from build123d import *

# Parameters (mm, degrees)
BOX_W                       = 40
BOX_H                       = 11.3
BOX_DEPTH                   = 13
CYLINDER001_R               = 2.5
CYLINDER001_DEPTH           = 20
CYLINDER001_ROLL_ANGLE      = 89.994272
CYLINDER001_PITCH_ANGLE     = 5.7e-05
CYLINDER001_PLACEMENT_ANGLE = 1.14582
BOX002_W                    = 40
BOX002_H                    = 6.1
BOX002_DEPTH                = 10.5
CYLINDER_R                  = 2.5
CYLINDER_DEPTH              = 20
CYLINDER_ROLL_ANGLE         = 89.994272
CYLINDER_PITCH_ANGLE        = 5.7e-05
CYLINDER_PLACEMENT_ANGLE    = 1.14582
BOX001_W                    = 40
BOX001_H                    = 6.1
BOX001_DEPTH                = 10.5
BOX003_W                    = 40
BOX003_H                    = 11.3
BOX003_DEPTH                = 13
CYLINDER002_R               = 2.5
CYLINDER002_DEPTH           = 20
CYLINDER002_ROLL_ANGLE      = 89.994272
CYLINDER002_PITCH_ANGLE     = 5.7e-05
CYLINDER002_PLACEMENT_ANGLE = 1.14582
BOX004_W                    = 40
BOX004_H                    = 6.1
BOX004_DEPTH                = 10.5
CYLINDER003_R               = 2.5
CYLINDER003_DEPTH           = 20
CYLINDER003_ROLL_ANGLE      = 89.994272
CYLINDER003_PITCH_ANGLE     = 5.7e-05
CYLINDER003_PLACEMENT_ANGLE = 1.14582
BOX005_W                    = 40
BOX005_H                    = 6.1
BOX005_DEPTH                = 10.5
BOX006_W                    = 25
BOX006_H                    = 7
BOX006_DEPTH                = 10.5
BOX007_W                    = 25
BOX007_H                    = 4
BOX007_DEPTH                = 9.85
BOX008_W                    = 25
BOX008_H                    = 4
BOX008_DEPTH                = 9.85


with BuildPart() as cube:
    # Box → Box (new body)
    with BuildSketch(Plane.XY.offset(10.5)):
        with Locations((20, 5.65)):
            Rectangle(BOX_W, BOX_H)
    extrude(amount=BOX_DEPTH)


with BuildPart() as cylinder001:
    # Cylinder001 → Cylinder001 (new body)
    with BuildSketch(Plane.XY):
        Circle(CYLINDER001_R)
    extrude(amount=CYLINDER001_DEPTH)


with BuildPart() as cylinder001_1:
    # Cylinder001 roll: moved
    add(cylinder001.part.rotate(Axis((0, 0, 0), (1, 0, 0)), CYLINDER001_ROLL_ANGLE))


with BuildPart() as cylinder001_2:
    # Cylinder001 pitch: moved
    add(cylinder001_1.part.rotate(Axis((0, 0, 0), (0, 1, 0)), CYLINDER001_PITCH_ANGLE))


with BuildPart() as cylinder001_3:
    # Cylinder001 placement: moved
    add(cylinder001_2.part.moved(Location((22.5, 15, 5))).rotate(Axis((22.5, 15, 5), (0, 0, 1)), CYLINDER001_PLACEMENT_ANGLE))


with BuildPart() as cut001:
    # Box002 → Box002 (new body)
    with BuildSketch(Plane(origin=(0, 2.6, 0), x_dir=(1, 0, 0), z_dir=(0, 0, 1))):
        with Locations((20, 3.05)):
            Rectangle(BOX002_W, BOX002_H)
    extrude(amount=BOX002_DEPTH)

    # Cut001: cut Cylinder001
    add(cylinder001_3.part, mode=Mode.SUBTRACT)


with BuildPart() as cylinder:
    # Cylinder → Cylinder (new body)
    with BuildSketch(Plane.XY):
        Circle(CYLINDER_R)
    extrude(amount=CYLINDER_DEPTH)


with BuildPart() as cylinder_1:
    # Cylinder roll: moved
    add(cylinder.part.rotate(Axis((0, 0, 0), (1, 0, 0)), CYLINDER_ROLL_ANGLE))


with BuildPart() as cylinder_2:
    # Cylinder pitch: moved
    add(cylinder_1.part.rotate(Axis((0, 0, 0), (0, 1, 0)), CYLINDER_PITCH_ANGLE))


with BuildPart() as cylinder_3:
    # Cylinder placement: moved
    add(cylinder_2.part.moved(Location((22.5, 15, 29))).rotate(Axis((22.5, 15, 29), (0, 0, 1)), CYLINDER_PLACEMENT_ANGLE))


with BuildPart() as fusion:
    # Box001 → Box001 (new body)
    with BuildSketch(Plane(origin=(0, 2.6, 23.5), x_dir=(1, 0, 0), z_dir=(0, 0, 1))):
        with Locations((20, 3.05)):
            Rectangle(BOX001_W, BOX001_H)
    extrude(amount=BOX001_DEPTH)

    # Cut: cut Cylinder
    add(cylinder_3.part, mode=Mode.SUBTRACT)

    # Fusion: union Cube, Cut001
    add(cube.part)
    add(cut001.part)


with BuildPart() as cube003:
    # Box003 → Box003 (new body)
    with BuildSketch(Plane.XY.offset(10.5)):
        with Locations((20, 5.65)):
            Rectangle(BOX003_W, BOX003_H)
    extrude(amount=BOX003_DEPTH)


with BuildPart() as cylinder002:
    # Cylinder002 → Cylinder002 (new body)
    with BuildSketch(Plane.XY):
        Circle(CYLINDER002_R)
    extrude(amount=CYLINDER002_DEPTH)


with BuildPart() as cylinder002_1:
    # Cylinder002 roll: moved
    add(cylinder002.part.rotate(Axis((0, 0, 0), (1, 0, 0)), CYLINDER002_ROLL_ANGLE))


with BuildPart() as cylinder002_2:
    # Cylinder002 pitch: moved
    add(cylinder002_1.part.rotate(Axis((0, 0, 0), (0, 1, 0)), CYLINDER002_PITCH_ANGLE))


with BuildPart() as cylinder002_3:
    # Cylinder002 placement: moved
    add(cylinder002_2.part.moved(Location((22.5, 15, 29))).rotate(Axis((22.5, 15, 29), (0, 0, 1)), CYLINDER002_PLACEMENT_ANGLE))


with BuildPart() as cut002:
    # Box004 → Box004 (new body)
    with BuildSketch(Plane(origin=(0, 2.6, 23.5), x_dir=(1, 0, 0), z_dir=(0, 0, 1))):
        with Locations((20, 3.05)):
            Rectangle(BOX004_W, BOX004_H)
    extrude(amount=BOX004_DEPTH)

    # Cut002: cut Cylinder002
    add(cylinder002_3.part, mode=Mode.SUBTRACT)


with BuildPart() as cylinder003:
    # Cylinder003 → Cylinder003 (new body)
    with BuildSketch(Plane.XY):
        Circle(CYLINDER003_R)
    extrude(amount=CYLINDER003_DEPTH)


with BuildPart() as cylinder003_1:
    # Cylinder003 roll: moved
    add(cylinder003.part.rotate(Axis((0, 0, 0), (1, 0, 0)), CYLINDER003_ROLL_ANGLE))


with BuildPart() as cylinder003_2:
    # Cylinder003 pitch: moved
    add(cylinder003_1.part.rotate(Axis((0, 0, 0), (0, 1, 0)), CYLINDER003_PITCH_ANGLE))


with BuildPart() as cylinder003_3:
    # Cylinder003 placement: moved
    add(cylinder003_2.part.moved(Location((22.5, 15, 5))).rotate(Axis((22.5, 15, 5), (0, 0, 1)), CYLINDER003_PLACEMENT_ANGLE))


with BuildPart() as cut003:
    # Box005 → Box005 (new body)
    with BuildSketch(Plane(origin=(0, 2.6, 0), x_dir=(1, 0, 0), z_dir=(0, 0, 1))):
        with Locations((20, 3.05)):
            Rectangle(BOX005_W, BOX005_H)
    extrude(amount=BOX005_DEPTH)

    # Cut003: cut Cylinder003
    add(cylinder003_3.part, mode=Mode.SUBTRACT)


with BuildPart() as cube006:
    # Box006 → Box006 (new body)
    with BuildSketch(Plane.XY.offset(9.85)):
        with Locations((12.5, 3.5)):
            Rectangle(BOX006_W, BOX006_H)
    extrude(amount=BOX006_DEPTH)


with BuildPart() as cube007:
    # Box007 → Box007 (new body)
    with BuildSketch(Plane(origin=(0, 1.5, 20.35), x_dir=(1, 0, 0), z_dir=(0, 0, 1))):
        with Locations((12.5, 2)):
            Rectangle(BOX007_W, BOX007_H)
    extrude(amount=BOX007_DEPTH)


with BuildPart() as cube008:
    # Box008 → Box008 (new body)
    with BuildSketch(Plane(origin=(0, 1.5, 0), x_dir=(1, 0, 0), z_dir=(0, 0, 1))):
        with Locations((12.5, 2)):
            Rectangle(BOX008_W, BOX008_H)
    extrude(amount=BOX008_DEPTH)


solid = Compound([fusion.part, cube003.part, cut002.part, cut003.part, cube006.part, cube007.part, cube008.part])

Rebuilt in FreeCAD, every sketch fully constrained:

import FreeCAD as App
import Part
import Sketcher

V = App.Vector
Q = App.Units.Quantity


def add_polygon(sketch, points):
    """Adds a closed chain of lines whose ends are joined by coincident constraints."""
    first, n = sketch.GeometryCount, len(points)
    for a, b in zip(points, points[1:] + points[:1]):
        sketch.addGeometry(Part.LineSegment(App.Vector(*a, 0), App.Vector(*b, 0)), False)
    for i in range(n):
        sketch.addConstraint(Sketcher.Constraint("Coincident", first + i, 2, first + (i + 1) % n, 1))

doc = App.newDocument("Part")
params = doc.addObject("Spreadsheet::Sheet", "Params")
for row, (alias, value) in enumerate([
    ("sketch1_width", "40 mm"),
    ("sketch1_height", "11.3 mm"),
    ("pad1_length", "13 mm"),
    ("sketch2_diameter", "5 mm"),
    ("pad2_length", "20 mm"),
    ("sketch3_width", "40 mm"),
    ("sketch3_height", "6.1 mm"),
    ("pad3_length", "10.5 mm"),
    ("sketch4_diameter", "5 mm"),
    ("pad4_length", "20 mm"),
    ("sketch5_width", "40 mm"),
    ("sketch5_height", "6.1 mm"),
    ("pad5_length", "10.5 mm"),
    ("sketch6_width", "40 mm"),
    ("sketch6_height", "11.3 mm"),
    ("pad6_length", "13 mm"),
    ("sketch7_diameter", "5 mm"),
    ("pad7_length", "20 mm"),
    ("sketch8_width", "40 mm"),
    ("sketch8_height", "6.1 mm"),
    ("pad8_length", "10.5 mm"),
    ("sketch9_diameter", "5 mm"),
    ("pad9_length", "20 mm"),
    ("sketch10_width", "40 mm"),
    ("sketch10_height", "6.1 mm"),
    ("pad10_length", "10.5 mm"),
    ("sketch11_width", "25 mm"),
    ("sketch11_height", "7 mm"),
    ("pad11_length", "10.5 mm"),
    ("sketch12_width", "25 mm"),
    ("sketch12_height", "4 mm"),
    ("pad12_length", "9.85 mm"),
    ("sketch13_width", "25 mm"),
    ("sketch13_height", "4 mm"),
    ("pad13_length", "9.85 mm"),
], start=1):
    params.set(f"A{row}", alias)
    params.set(f"B{row}", "=" + value)
    params.setAlias(f"B{row}", alias)

body = doc.addObject("PartDesign::Body", "Body")

# Sketch on XY plane
sketch1 = doc.addObject("Sketcher::SketchObject", "Sketch")
body.addObject(sketch1)
sketch1.AttachmentSupport = (doc.XY_Plane, [""])
sketch1.MapMode = "FlatFace"
sketch1.AttachmentOffset = App.Placement(V(0, 0, 10.5), App.Rotation())
add_polygon(sketch1, [(0, 11), (0, 0), (40, 0), (40, 11)])  # lines 0-3
sketch1.addConstraint(Sketcher.Constraint("Vertical", 0))
sketch1.addConstraint(Sketcher.Constraint("Horizontal", 1))
sketch1.addConstraint(Sketcher.Constraint("Vertical", 2))
sketch1.addConstraint(Sketcher.Constraint("Horizontal", 3))
sketch1.addConstraint(Sketcher.Constraint("Coincident", 0, 2, -1, 1))
sketch1.addConstraint(Sketcher.Constraint("DistanceX", 1, 1, 1, 2, Q("40 mm")))
sketch1.addConstraint(Sketcher.Constraint("DistanceY", 0, 2, 0, 1, Q("11.3 mm")))
sketch1.setExpression("Constraints[9]", "Params.sketch1_width")
sketch1.setExpression("Constraints[10]", "Params.sketch1_height")
pad1 = doc.addObject("PartDesign::Pad", "Pad")
body.addObject(pad1)
pad1.Profile = sketch1
pad1.setExpression("Length", "Params.pad1_length")
body2 = doc.addObject("PartDesign::Body", "Body001")

# Sketch on XY plane
sketch2 = doc.addObject("Sketcher::SketchObject", "Sketch001")
body2.addObject(sketch2)
sketch2.AttachmentSupport = (doc.getObject("XY_Plane001"), [""])
sketch2.MapMode = "FlatFace"
sketch2.addGeometry(Part.Circle(V(0, 0, 0), V(0, 0, 1), 2.5), False)
sketch2.addConstraint(Sketcher.Constraint("Coincident", 0, 3, -1, 1))
sketch2.addConstraint(Sketcher.Constraint("Diameter", 0, Q("5 mm")))
sketch2.setExpression("Constraints[1]", "Params.sketch2_diameter")
pad2 = doc.addObject("PartDesign::Pad", "Pad001")
body2.addObject(pad2)
pad2.Profile = sketch2
pad2.setExpression("Length", "Params.pad2_length")
body3 = doc.addObject("PartDesign::Body", "Body002")
doc.recompute()

body2.Placement = App.Placement(V(0, 0, 0), App.Rotation(V(1, 0, 0), 89.994272))
boolean = doc.addObject("PartDesign::Boolean", "Boolean")
body3.addObject(boolean)
boolean.Type = "Fuse"
boolean.addObjects([body2])
body4 = doc.addObject("PartDesign::Body", "Body003")
doc.recompute()

body3.Placement = App.Placement(V(0, 0, 0), App.Rotation(V(0, 1, 0), 0.000057))
boolean2 = doc.addObject("PartDesign::Boolean", "Boolean001")
body4.addObject(boolean2)
boolean2.Type = "Fuse"
boolean2.addObjects([body3])
body5 = doc.addObject("PartDesign::Body", "Body004")
doc.recompute()

body4.Placement = App.Placement(V(22.5, 15, 5), App.Rotation(V(0, 0, 1), 1.14582))
boolean3 = doc.addObject("PartDesign::Boolean", "Boolean002")
body5.addObject(boolean3)
boolean3.Type = "Fuse"
boolean3.addObjects([body4])
body6 = doc.addObject("PartDesign::Body", "Body005")

# Sketch on XY plane
sketch3 = doc.addObject("Sketcher::SketchObject", "Sketch002")
body6.addObject(sketch3)
sketch3.AttachmentSupport = (doc.getObject("XY_Plane005"), [""])
sketch3.MapMode = "FlatFace"
add_polygon(sketch3, [(0, 9), (0, 3), (40, 3), (40, 9)])  # lines 0-3
sketch3.addConstraint(Sketcher.Constraint("Vertical", 0))
sketch3.addConstraint(Sketcher.Constraint("Horizontal", 1))
sketch3.addConstraint(Sketcher.Constraint("Vertical", 2))
sketch3.addConstraint(Sketcher.Constraint("Horizontal", 3))
sketch3.addConstraint(Sketcher.Constraint("PointOnObject", 0, 2, -2))
sketch3.addConstraint(Sketcher.Constraint("DistanceX", 1, 1, 1, 2, Q("40 mm")))
sketch3.addConstraint(Sketcher.Constraint("DistanceY", 0, 2, 0, 1, Q("6.1 mm")))
sketch3.addConstraint(Sketcher.Constraint("DistanceY", -1, 1, 0, 2, Q("2.6 mm")))
sketch3.setExpression("Constraints[9]", "Params.sketch3_width")
sketch3.setExpression("Constraints[10]", "Params.sketch3_height")
pad3 = doc.addObject("PartDesign::Pad", "Pad002")
body6.addObject(pad3)
pad3.Profile = sketch3
pad3.setExpression("Length", "Params.pad3_length")
doc.recompute()

boolean4 = doc.addObject("PartDesign::Boolean", "Boolean003")
body6.addObject(boolean4)
boolean4.Type = "Cut"
boolean4.addObjects([body5])
body7 = doc.addObject("PartDesign::Body", "Body006")

# Sketch on XY plane
sketch4 = doc.addObject("Sketcher::SketchObject", "Sketch003")
body7.addObject(sketch4)
sketch4.AttachmentSupport = (doc.getObject("XY_Plane006"), [""])
sketch4.MapMode = "FlatFace"
sketch4.addGeometry(Part.Circle(V(0, 0, 0), V(0, 0, 1), 2.5), False)
sketch4.addConstraint(Sketcher.Constraint("Coincident", 0, 3, -1, 1))
sketch4.addConstraint(Sketcher.Constraint("Diameter", 0, Q("5 mm")))
sketch4.setExpression("Constraints[1]", "Params.sketch4_diameter")
pad4 = doc.addObject("PartDesign::Pad", "Pad003")
body7.addObject(pad4)
pad4.Profile = sketch4
pad4.setExpression("Length", "Params.pad4_length")
body8 = doc.addObject("PartDesign::Body", "Body007")
doc.recompute()

body7.Placement = App.Placement(V(0, 0, 0), App.Rotation(V(1, 0, 0), 89.994272))
boolean5 = doc.addObject("PartDesign::Boolean", "Boolean004")
body8.addObject(boolean5)
boolean5.Type = "Fuse"
boolean5.addObjects([body7])
body9 = doc.addObject("PartDesign::Body", "Body008")
doc.recompute()

body8.Placement = App.Placement(V(0, 0, 0), App.Rotation(V(0, 1, 0), 0.000057))
boolean6 = doc.addObject("PartDesign::Boolean", "Boolean005")
body9.addObject(boolean6)
boolean6.Type = "Fuse"
boolean6.addObjects([body8])
body10 = doc.addObject("PartDesign::Body", "Body009")
doc.recompute()

body9.Placement = App.Placement(V(22.5, 15, 29), App.Rotation(V(0, 0, 1), 1.14582))
boolean7 = doc.addObject("PartDesign::Boolean", "Boolean006")
body10.addObject(boolean7)
boolean7.Type = "Fuse"
boolean7.addObjects([body9])
body11 = doc.addObject("PartDesign::Body", "Body010")

# Sketch on XY plane
sketch5 = doc.addObject("Sketcher::SketchObject", "Sketch004")
body11.addObject(sketch5)
sketch5.AttachmentSupport = (doc.getObject("XY_Plane010"), [""])
sketch5.MapMode = "FlatFace"
sketch5.AttachmentOffset = App.Placement(V(0, 0, 23.5), App.Rotation())
add_polygon(sketch5, [(0, 9), (0, 3), (40, 3), (40, 9)])  # lines 0-3
sketch5.addConstraint(Sketcher.Constraint("Vertical", 0))
sketch5.addConstraint(Sketcher.Constraint("Horizontal", 1))
sketch5.addConstraint(Sketcher.Constraint("Vertical", 2))
sketch5.addConstraint(Sketcher.Constraint("Horizontal", 3))
sketch5.addConstraint(Sketcher.Constraint("PointOnObject", 0, 2, -2))
sketch5.addConstraint(Sketcher.Constraint("DistanceX", 1, 1, 1, 2, Q("40 mm")))
sketch5.addConstraint(Sketcher.Constraint("DistanceY", 0, 2, 0, 1, Q("6.1 mm")))
sketch5.addConstraint(Sketcher.Constraint("DistanceY", -1, 1, 0, 2, Q("2.6 mm")))
sketch5.setExpression("Constraints[9]", "Params.sketch5_width")
sketch5.setExpression("Constraints[10]", "Params.sketch5_height")
pad5 = doc.addObject("PartDesign::Pad", "Pad004")
body11.addObject(pad5)
pad5.Profile = sketch5
pad5.setExpression("Length", "Params.pad5_length")
doc.recompute()

boolean8 = doc.addObject("PartDesign::Boolean", "Boolean007")
body11.addObject(boolean8)
boolean8.Type = "Cut"
boolean8.addObjects([body10])
doc.recompute()

boolean9 = doc.addObject("PartDesign::Boolean", "Boolean008")
body11.addObject(boolean9)
boolean9.Type = "Fuse"
boolean9.addObjects([body])
doc.recompute()

boolean10 = doc.addObject("PartDesign::Boolean", "Boolean009")
body11.addObject(boolean10)
boolean10.Type = "Fuse"
boolean10.addObjects([body6])
body12 = doc.addObject("PartDesign::Body", "Body011")

# Sketch on XY plane
sketch6 = doc.addObject("Sketcher::SketchObject", "Sketch005")
body12.addObject(sketch6)
sketch6.AttachmentSupport = (doc.getObject("XY_Plane011"), [""])
sketch6.MapMode = "FlatFace"
sketch6.AttachmentOffset = App.Placement(V(0, 0, 10.5), App.Rotation())
add_polygon(sketch6, [(0, 11), (0, 0), (40, 0), (40, 11)])  # lines 0-3
sketch6.addConstraint(Sketcher.Constraint("Vertical", 0))
sketch6.addConstraint(Sketcher.Constraint("Horizontal", 1))
sketch6.addConstraint(Sketcher.Constraint("Vertical", 2))
sketch6.addConstraint(Sketcher.Constraint("Horizontal", 3))
sketch6.addConstraint(Sketcher.Constraint("Coincident", 0, 2, -1, 1))
sketch6.addConstraint(Sketcher.Constraint("DistanceX", 1, 1, 1, 2, Q("40 mm")))
sketch6.addConstraint(Sketcher.Constraint("DistanceY", 0, 2, 0, 1, Q("11.3 mm")))
sketch6.setExpression("Constraints[9]", "Params.sketch6_width")
sketch6.setExpression("Constraints[10]", "Params.sketch6_height")
pad6 = doc.addObject("PartDesign::Pad", "Pad005")
body12.addObject(pad6)
pad6.Profile = sketch6
pad6.setExpression("Length", "Params.pad6_length")
body13 = doc.addObject("PartDesign::Body", "Body012")

# Sketch on XY plane
sketch7 = doc.addObject("Sketcher::SketchObject", "Sketch006")
body13.addObject(sketch7)
sketch7.AttachmentSupport = (doc.getObject("XY_Plane012"), [""])
sketch7.MapMode = "FlatFace"
sketch7.addGeometry(Part.Circle(V(0, 0, 0), V(0, 0, 1), 2.5), False)
sketch7.addConstraint(Sketcher.Constraint("Coincident", 0, 3, -1, 1))
sketch7.addConstraint(Sketcher.Constraint("Diameter", 0, Q("5 mm")))
sketch7.setExpression("Constraints[1]", "Params.sketch7_diameter")
pad7 = doc.addObject("PartDesign::Pad", "Pad006")
body13.addObject(pad7)
pad7.Profile = sketch7
pad7.setExpression("Length", "Params.pad7_length")
body14 = doc.addObject("PartDesign::Body", "Body013")
doc.recompute()

body13.Placement = App.Placement(V(0, 0, 0), App.Rotation(V(1, 0, 0), 89.994272))
boolean11 = doc.addObject("PartDesign::Boolean", "Boolean010")
body14.addObject(boolean11)
boolean11.Type = "Fuse"
boolean11.addObjects([body13])
body15 = doc.addObject("PartDesign::Body", "Body014")
doc.recompute()

body14.Placement = App.Placement(V(0, 0, 0), App.Rotation(V(0, 1, 0), 0.000057))
boolean12 = doc.addObject("PartDesign::Boolean", "Boolean011")
body15.addObject(boolean12)
boolean12.Type = "Fuse"
boolean12.addObjects([body14])
body16 = doc.addObject("PartDesign::Body", "Body015")
doc.recompute()

body15.Placement = App.Placement(V(22.5, 15, 29), App.Rotation(V(0, 0, 1), 1.14582))
boolean13 = doc.addObject("PartDesign::Boolean", "Boolean012")
body16.addObject(boolean13)
boolean13.Type = "Fuse"
boolean13.addObjects([body15])
body17 = doc.addObject("PartDesign::Body", "Body016")

# Sketch on XY plane
sketch8 = doc.addObject("Sketcher::SketchObject", "Sketch007")
body17.addObject(sketch8)
sketch8.AttachmentSupport = (doc.getObject("XY_Plane016"), [""])
sketch8.MapMode = "FlatFace"
sketch8.AttachmentOffset = App.Placement(V(0, 0, 23.5), App.Rotation())
add_polygon(sketch8, [(0, 9), (0, 3), (40, 3), (40, 9)])  # lines 0-3
sketch8.addConstraint(Sketcher.Constraint("Vertical", 0))
sketch8.addConstraint(Sketcher.Constraint("Horizontal", 1))
sketch8.addConstraint(Sketcher.Constraint("Vertical", 2))
sketch8.addConstraint(Sketcher.Constraint("Horizontal", 3))
sketch8.addConstraint(Sketcher.Constraint("PointOnObject", 0, 2, -2))
sketch8.addConstraint(Sketcher.Constraint("DistanceX", 1, 1, 1, 2, Q("40 mm")))
sketch8.addConstraint(Sketcher.Constraint("DistanceY", 0, 2, 0, 1, Q("6.1 mm")))
sketch8.addConstraint(Sketcher.Constraint("DistanceY", -1, 1, 0, 2, Q("2.6 mm")))
sketch8.setExpression("Constraints[9]", "Params.sketch8_width")
sketch8.setExpression("Constraints[10]", "Params.sketch8_height")
pad8 = doc.addObject("PartDesign::Pad", "Pad007")
body17.addObject(pad8)
pad8.Profile = sketch8
pad8.setExpression("Length", "Params.pad8_length")
doc.recompute()

boolean14 = doc.addObject("PartDesign::Boolean", "Boolean013")
body17.addObject(boolean14)
boolean14.Type = "Cut"
boolean14.addObjects([body16])
body18 = doc.addObject("PartDesign::Body", "Body017")

# Sketch on XY plane
sketch9 = doc.addObject("Sketcher::SketchObject", "Sketch008")
body18.addObject(sketch9)
sketch9.AttachmentSupport = (doc.getObject("XY_Plane017"), [""])
sketch9.MapMode = "FlatFace"
sketch9.addGeometry(Part.Circle(V(0, 0, 0), V(0, 0, 1), 2.5), False)
sketch9.addConstraint(Sketcher.Constraint("Coincident", 0, 3, -1, 1))
sketch9.addConstraint(Sketcher.Constraint("Diameter", 0, Q("5 mm")))
sketch9.setExpression("Constraints[1]", "Params.sketch9_diameter")
pad9 = doc.addObject("PartDesign::Pad", "Pad008")
body18.addObject(pad9)
pad9.Profile = sketch9
pad9.setExpression("Length", "Params.pad9_length")
body19 = doc.addObject("PartDesign::Body", "Body018")
doc.recompute()

body18.Placement = App.Placement(V(0, 0, 0), App.Rotation(V(1, 0, 0), 89.994272))
boolean15 = doc.addObject("PartDesign::Boolean", "Boolean014")
body19.addObject(boolean15)
boolean15.Type = "Fuse"
boolean15.addObjects([body18])
body20 = doc.addObject("PartDesign::Body", "Body019")
doc.recompute()

body19.Placement = App.Placement(V(0, 0, 0), App.Rotation(V(0, 1, 0), 0.000057))
boolean16 = doc.addObject("PartDesign::Boolean", "Boolean015")
body20.addObject(boolean16)
boolean16.Type = "Fuse"
boolean16.addObjects([body19])
body21 = doc.addObject("PartDesign::Body", "Body020")
doc.recompute()

body20.Placement = App.Placement(V(22.5, 15, 5), App.Rotation(V(0, 0, 1), 1.14582))
boolean17 = doc.addObject("PartDesign::Boolean", "Boolean016")
body21.addObject(boolean17)
boolean17.Type = "Fuse"
boolean17.addObjects([body20])
body22 = doc.addObject("PartDesign::Body", "Body021")

# Sketch on XY plane
sketch10 = doc.addObject("Sketcher::SketchObject", "Sketch009")
body22.addObject(sketch10)
sketch10.AttachmentSupport = (doc.getObject("XY_Plane021"), [""])
sketch10.MapMode = "FlatFace"
add_polygon(sketch10, [(0, 9), (0, 3), (40, 3), (40, 9)])  # lines 0-3
sketch10.addConstraint(Sketcher.Constraint("Vertical", 0))
sketch10.addConstraint(Sketcher.Constraint("Horizontal", 1))
sketch10.addConstraint(Sketcher.Constraint("Vertical", 2))
sketch10.addConstraint(Sketcher.Constraint("Horizontal", 3))
sketch10.addConstraint(Sketcher.Constraint("PointOnObject", 0, 2, -2))
sketch10.addConstraint(Sketcher.Constraint("DistanceX", 1, 1, 1, 2, Q("40 mm")))
sketch10.addConstraint(Sketcher.Constraint("DistanceY", 0, 2, 0, 1, Q("6.1 mm")))
sketch10.addConstraint(Sketcher.Constraint("DistanceY", -1, 1, 0, 2, Q("2.6 mm")))
sketch10.setExpression("Constraints[9]", "Params.sketch10_width")
sketch10.setExpression("Constraints[10]", "Params.sketch10_height")
pad10 = doc.addObject("PartDesign::Pad", "Pad009")
body22.addObject(pad10)
pad10.Profile = sketch10
pad10.setExpression("Length", "Params.pad10_length")
doc.recompute()

boolean18 = doc.addObject("PartDesign::Boolean", "Boolean017")
body22.addObject(boolean18)
boolean18.Type = "Cut"
boolean18.addObjects([body21])
body23 = doc.addObject("PartDesign::Body", "Body022")

# Sketch on XY plane
sketch11 = doc.addObject("Sketcher::SketchObject", "Sketch010")
body23.addObject(sketch11)
sketch11.AttachmentSupport = (doc.getObject("XY_Plane022"), [""])
sketch11.MapMode = "FlatFace"
sketch11.AttachmentOffset = App.Placement(V(0, 0, 9.85), App.Rotation())
add_polygon(sketch11, [(0, 7), (0, 0), (25, 0), (25, 7)])  # lines 0-3
sketch11.addConstraint(Sketcher.Constraint("Vertical", 0))
sketch11.addConstraint(Sketcher.Constraint("Horizontal", 1))
sketch11.addConstraint(Sketcher.Constraint("Vertical", 2))
sketch11.addConstraint(Sketcher.Constraint("Horizontal", 3))
sketch11.addConstraint(Sketcher.Constraint("Coincident", 0, 2, -1, 1))
sketch11.addConstraint(Sketcher.Constraint("DistanceX", 1, 1, 1, 2, Q("25 mm")))
sketch11.addConstraint(Sketcher.Constraint("DistanceY", 0, 2, 0, 1, Q("7 mm")))
sketch11.setExpression("Constraints[9]", "Params.sketch11_width")
sketch11.setExpression("Constraints[10]", "Params.sketch11_height")
pad11 = doc.addObject("PartDesign::Pad", "Pad010")
body23.addObject(pad11)
pad11.Profile = sketch11
pad11.setExpression("Length", "Params.pad11_length")
body24 = doc.addObject("PartDesign::Body", "Body023")

# Sketch on XY plane
sketch12 = doc.addObject("Sketcher::SketchObject", "Sketch011")
body24.addObject(sketch12)
sketch12.AttachmentSupport = (doc.getObject("XY_Plane023"), [""])
sketch12.MapMode = "FlatFace"
sketch12.AttachmentOffset = App.Placement(V(0, 0, 20.35), App.Rotation())
add_polygon(sketch12, [(0, 5.5), (0, 1.5), (25, 1.5), (25, 5.5)])  # lines 0-3
sketch12.addConstraint(Sketcher.Constraint("Vertical", 0))
sketch12.addConstraint(Sketcher.Constraint("Horizontal", 1))
sketch12.addConstraint(Sketcher.Constraint("Vertical", 2))
sketch12.addConstraint(Sketcher.Constraint("Horizontal", 3))
sketch12.addConstraint(Sketcher.Constraint("PointOnObject", 0, 2, -2))
sketch12.addConstraint(Sketcher.Constraint("DistanceX", 1, 1, 1, 2, Q("25 mm")))
sketch12.addConstraint(Sketcher.Constraint("DistanceY", 0, 2, 0, 1, Q("4 mm")))
sketch12.addConstraint(Sketcher.Constraint("DistanceY", -1, 1, 0, 2, Q("1.5 mm")))
sketch12.setExpression("Constraints[9]", "Params.sketch12_width")
sketch12.setExpression("Constraints[10]", "Params.sketch12_height")
pad12 = doc.addObject("PartDesign::Pad", "Pad011")
body24.addObject(pad12)
pad12.Profile = sketch12
pad12.setExpression("Length", "Params.pad12_length")
body25 = doc.addObject("PartDesign::Body", "Body024")

# Sketch on XY plane
sketch13 = doc.addObject("Sketcher::SketchObject", "Sketch012")
body25.addObject(sketch13)
sketch13.AttachmentSupport = (doc.getObject("XY_Plane024"), [""])
sketch13.MapMode = "FlatFace"
add_polygon(sketch13, [(0, 5.5), (0, 1.5), (25, 1.5), (25, 5.5)])  # lines 0-3
sketch13.addConstraint(Sketcher.Constraint("Vertical", 0))
sketch13.addConstraint(Sketcher.Constraint("Horizontal", 1))
sketch13.addConstraint(Sketcher.Constraint("Vertical", 2))
sketch13.addConstraint(Sketcher.Constraint("Horizontal", 3))
sketch13.addConstraint(Sketcher.Constraint("PointOnObject", 0, 2, -2))
sketch13.addConstraint(Sketcher.Constraint("DistanceX", 1, 1, 1, 2, Q("25 mm")))
sketch13.addConstraint(Sketcher.Constraint("DistanceY", 0, 2, 0, 1, Q("4 mm")))
sketch13.addConstraint(Sketcher.Constraint("DistanceY", -1, 1, 0, 2, Q("1.5 mm")))
sketch13.setExpression("Constraints[9]", "Params.sketch13_width")
sketch13.setExpression("Constraints[10]", "Params.sketch13_height")
pad13 = doc.addObject("PartDesign::Pad", "Pad012")
body25.addObject(pad13)
pad13.Profile = sketch13
pad13.setExpression("Length", "Params.pad13_length")

doc.recompute()
